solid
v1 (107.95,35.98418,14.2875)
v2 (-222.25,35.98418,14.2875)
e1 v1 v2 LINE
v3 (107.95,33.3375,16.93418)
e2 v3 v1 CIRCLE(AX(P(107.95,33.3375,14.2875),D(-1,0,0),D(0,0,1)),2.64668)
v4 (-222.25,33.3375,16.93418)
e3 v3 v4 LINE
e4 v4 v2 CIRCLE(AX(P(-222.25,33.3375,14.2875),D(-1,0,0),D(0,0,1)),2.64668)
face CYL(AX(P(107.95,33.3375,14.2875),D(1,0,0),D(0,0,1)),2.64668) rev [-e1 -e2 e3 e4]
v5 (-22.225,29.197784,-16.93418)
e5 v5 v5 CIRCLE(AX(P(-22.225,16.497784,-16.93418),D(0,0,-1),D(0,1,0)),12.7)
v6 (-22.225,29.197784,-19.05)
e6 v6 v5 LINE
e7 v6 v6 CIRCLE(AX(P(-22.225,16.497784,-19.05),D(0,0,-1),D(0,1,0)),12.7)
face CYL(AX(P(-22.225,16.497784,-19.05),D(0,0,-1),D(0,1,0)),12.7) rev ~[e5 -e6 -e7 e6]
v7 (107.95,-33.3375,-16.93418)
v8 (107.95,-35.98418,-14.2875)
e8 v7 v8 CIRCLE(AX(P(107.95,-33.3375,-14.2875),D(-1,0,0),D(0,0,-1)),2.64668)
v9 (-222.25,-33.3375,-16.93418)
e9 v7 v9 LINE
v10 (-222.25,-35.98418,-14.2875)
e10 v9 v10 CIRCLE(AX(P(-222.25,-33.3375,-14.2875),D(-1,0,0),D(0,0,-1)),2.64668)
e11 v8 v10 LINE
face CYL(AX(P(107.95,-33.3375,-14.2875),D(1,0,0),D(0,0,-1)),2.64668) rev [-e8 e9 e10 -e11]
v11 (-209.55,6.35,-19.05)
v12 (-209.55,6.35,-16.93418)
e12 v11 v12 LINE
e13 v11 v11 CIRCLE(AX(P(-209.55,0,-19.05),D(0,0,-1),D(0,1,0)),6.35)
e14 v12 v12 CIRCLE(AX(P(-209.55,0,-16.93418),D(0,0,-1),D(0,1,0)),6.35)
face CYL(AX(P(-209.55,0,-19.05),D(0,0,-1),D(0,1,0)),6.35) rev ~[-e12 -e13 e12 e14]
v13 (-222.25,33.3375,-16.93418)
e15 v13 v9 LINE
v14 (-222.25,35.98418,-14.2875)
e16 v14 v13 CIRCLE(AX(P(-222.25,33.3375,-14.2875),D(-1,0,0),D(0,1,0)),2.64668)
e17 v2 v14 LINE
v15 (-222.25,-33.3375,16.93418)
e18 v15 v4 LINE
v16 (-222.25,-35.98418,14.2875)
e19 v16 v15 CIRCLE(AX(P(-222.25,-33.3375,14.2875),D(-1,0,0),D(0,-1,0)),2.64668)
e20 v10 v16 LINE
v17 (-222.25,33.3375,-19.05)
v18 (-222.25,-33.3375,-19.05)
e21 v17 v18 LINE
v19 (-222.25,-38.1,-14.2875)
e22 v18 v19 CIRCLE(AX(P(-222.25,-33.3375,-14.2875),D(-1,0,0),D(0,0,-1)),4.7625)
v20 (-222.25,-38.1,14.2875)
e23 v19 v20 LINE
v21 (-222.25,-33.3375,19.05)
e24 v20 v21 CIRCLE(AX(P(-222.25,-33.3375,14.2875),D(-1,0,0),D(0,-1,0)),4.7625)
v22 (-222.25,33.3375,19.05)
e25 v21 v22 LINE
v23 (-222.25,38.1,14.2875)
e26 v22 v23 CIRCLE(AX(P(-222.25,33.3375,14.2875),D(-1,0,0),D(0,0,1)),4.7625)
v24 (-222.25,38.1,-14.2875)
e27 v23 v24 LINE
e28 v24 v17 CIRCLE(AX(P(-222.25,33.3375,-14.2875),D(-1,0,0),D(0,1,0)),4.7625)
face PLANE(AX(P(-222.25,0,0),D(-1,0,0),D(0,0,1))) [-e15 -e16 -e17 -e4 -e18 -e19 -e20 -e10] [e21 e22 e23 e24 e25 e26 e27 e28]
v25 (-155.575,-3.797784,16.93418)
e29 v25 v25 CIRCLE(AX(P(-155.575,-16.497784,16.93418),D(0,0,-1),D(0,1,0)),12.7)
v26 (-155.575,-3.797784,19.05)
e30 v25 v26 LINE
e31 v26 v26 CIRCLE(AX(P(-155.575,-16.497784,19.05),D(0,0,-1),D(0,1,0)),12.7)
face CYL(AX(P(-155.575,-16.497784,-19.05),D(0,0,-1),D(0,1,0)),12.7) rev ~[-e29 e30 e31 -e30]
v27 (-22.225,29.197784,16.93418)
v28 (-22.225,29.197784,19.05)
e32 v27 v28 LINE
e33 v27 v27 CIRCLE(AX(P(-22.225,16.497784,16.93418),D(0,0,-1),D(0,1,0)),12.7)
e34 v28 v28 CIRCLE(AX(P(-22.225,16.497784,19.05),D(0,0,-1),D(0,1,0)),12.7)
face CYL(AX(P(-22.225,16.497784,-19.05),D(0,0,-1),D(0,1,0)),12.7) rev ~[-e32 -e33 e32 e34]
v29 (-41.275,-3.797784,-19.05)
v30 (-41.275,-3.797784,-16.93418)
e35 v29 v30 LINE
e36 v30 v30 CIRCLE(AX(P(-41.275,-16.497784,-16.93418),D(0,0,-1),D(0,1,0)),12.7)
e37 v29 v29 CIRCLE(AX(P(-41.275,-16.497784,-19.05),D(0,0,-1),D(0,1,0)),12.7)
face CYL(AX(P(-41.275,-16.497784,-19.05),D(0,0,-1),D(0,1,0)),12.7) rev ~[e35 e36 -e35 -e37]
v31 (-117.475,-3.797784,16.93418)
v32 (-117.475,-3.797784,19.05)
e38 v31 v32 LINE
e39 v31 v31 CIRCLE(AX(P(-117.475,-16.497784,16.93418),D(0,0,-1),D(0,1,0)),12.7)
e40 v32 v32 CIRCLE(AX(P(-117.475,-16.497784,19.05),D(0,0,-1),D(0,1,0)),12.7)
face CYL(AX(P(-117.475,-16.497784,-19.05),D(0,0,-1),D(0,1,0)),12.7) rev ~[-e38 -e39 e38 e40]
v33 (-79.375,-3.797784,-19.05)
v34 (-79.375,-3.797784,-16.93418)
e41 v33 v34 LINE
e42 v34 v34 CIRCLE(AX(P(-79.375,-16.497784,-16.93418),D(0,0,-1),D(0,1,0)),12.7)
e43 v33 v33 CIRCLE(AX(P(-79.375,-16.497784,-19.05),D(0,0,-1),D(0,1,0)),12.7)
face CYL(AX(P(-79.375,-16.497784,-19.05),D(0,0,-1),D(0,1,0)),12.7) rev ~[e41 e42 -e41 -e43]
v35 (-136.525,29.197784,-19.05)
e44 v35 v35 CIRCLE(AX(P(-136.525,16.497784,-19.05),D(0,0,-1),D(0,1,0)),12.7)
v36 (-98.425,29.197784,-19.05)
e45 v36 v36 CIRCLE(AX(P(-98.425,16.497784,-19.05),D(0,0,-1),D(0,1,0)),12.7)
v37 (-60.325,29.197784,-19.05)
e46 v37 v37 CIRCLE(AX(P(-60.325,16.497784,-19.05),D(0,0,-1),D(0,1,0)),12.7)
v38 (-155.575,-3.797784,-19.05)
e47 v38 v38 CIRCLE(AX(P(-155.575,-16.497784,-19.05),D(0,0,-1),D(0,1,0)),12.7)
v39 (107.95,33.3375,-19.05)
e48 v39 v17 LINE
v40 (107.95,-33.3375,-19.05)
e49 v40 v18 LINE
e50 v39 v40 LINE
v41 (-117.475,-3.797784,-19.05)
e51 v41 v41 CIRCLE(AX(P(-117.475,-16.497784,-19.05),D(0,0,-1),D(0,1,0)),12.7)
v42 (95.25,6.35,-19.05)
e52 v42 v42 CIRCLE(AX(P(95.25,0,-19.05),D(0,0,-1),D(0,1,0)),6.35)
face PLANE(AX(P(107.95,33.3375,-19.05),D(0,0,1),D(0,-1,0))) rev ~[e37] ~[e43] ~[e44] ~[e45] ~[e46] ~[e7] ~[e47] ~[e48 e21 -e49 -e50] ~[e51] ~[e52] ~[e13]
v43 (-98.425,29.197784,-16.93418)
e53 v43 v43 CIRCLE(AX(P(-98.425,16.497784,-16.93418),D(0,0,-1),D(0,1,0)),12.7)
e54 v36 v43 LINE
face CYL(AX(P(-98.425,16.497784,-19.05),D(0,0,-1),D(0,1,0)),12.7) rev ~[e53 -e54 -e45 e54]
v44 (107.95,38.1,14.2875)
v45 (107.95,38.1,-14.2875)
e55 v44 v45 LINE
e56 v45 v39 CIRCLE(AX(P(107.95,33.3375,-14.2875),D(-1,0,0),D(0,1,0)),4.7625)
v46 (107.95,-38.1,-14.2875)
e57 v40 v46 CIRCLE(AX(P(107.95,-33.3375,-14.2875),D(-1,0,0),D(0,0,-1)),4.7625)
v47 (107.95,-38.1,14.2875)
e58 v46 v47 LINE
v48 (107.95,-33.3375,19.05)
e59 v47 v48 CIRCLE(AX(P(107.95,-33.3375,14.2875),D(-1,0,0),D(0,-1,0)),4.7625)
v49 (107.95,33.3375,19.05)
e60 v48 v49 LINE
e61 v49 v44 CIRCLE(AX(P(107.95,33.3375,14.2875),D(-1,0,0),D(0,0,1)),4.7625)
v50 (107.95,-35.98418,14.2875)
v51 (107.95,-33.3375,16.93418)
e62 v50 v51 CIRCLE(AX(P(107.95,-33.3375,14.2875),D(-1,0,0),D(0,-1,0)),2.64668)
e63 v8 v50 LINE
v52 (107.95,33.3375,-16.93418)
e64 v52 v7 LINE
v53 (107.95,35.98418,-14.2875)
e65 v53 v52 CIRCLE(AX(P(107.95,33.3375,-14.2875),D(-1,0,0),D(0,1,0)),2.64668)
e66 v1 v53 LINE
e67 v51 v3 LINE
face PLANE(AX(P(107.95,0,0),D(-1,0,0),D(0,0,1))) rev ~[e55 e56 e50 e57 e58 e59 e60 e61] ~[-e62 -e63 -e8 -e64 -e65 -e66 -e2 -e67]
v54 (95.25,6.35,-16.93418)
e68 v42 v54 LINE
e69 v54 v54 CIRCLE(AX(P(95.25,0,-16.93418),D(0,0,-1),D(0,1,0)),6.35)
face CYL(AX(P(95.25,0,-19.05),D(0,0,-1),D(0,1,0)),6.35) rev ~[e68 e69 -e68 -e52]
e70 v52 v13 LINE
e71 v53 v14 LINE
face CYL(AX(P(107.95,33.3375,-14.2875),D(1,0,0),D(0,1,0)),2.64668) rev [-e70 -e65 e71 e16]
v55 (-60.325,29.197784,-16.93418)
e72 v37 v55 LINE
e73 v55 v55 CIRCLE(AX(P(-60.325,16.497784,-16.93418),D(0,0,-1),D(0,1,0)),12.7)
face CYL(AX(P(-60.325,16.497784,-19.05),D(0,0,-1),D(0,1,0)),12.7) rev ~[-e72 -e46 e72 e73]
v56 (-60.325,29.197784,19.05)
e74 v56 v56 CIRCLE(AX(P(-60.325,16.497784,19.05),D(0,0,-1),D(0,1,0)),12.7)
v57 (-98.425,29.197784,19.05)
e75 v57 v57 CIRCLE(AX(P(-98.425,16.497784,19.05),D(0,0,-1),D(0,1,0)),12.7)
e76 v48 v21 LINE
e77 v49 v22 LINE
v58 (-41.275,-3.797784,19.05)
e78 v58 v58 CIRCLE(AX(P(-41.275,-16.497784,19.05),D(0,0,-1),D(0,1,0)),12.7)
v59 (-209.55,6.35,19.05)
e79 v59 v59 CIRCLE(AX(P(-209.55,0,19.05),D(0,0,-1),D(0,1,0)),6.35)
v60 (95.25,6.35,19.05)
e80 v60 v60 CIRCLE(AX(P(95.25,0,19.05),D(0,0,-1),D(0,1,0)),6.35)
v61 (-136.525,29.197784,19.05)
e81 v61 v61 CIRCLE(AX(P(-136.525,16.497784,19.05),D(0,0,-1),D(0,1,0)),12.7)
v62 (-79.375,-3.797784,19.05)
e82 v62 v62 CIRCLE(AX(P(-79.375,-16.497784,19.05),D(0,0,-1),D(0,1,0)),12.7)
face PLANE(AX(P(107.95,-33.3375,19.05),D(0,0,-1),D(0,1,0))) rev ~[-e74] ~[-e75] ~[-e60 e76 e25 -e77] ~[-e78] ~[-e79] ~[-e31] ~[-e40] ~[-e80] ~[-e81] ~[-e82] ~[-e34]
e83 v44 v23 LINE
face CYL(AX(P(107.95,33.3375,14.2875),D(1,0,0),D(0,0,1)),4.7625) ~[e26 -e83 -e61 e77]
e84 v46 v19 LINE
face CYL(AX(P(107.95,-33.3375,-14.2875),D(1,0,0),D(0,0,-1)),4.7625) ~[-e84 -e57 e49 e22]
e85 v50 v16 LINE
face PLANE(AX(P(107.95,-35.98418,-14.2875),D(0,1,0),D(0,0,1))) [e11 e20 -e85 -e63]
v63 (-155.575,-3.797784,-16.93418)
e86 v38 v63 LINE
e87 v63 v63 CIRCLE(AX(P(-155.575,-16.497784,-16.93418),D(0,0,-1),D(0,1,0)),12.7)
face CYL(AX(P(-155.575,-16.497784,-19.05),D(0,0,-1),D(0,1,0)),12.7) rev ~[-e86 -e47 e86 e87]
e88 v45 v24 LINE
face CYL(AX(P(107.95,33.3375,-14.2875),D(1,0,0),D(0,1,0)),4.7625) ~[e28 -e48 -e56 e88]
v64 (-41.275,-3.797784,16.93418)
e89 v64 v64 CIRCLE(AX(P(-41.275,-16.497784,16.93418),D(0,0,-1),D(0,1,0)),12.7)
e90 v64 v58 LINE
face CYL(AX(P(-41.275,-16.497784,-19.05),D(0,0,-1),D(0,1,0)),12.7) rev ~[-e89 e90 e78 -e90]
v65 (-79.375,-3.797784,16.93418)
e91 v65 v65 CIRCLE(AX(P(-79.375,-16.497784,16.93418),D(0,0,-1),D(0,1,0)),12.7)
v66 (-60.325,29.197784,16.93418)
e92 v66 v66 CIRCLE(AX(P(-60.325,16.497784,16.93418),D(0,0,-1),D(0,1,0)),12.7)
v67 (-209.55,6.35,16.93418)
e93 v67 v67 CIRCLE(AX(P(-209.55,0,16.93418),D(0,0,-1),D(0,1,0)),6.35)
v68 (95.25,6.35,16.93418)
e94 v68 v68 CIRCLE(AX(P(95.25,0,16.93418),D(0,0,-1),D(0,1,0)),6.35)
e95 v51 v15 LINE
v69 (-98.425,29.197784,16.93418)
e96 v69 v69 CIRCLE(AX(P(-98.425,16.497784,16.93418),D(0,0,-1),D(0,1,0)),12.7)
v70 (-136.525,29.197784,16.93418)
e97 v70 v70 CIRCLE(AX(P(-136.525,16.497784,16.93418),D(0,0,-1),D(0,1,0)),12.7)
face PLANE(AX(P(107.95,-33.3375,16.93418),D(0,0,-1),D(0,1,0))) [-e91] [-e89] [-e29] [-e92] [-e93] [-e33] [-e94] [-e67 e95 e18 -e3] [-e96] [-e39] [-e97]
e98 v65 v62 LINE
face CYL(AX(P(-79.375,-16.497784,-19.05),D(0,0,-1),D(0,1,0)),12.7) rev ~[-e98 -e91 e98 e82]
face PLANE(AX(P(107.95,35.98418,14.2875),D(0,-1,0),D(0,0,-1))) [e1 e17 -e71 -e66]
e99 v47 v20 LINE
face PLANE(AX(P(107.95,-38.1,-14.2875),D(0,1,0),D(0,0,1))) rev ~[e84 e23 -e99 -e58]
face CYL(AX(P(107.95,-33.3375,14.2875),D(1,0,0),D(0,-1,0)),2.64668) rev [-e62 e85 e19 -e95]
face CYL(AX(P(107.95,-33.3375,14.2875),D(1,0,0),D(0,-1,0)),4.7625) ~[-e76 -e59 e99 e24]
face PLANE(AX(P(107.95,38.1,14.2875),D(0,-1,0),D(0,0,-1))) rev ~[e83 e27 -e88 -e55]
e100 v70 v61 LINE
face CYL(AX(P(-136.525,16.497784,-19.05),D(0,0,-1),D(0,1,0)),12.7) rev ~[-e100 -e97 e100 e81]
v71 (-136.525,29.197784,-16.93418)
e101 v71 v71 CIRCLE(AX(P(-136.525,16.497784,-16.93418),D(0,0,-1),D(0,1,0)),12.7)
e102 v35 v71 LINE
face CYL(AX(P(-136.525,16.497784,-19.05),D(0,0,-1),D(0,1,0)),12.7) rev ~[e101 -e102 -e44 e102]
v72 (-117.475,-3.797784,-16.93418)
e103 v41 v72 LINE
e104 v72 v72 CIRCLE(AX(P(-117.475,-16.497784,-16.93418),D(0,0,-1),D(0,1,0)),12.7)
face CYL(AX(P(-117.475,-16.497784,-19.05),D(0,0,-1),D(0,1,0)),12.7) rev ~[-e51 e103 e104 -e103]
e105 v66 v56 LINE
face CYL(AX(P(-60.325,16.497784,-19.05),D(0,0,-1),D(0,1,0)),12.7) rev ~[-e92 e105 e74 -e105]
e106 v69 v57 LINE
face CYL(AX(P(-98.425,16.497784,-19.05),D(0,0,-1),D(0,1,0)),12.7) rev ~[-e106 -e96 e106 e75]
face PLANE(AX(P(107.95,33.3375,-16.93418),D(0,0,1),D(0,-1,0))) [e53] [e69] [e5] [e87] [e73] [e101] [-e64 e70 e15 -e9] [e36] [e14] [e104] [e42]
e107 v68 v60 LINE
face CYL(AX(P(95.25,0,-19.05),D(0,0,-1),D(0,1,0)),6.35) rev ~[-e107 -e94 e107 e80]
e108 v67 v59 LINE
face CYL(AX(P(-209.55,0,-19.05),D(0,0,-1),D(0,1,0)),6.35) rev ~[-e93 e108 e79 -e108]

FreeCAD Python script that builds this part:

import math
import FreeCAD as App
import Part
import Sketcher
Q = App.Units.Quantity

doc = App.newDocument("Part")
params = doc.addObject("Spreadsheet::Sheet", "Params")
for row, (alias, value) in enumerate([
    ("sketch1_radius", "0.1875 in"),
    ("sketch1_height", "1.125 in"),
    ("pad1_length", "13 in"),
    ("sketch2_diameter", "0.5 in"),
    ("sketch3_diameter", "1 in"),
    ("linearpattern_pitch", "1.5 in"),
], start=1):
    params.set(f"A{row}", alias)
    params.set(f"B{row}", "=" + value)
    params.setAlias(f"B{row}", alias)

body = doc.addObject("PartDesign::Body", "Body")

sketch1 = doc.addObject("Sketcher::SketchObject", "Sketch")
body.addObject(sketch1)
sketch1.AttachmentSupport = (doc.YZ_Plane, [""])
sketch1.MapMode = "FlatFace"
sketch1.AttachmentOffset = App.Placement(App.Vector(0, 0, 4.25 * 25.4), App.Rotation())
sketch1.addGeometry([
    Part.LineSegment(App.Vector(-38.1, -14.3, 0), App.Vector(-38.1, 14.3, 0)),
    Part.ArcOfCircle(Part.Circle(App.Vector(-33.3, 14.3, 0), App.Vector(0, 0, 1), 4.8), math.radians(90), math.radians(180)),
    Part.LineSegment(App.Vector(-33.3, 19.1, 0), App.Vector(33.3, 19.1, 0)),
    Part.ArcOfCircle(Part.Circle(App.Vector(33.3, 14.3, 0), App.Vector(0, 0, 1), 4.8), math.radians(0), math.radians(90)),
    Part.LineSegment(App.Vector(38.1, 14.3, 0), App.Vector(38.1, -14.3, 0)),
    Part.ArcOfCircle(Part.Circle(App.Vector(33.3, -14.3, 0), App.Vector(0, 0, 1), 4.8), math.radians(-90), math.radians(0)),
    Part.LineSegment(App.Vector(33.3, -19.1, 0), App.Vector(-33.3, -19.1, 0)),
    Part.ArcOfCircle(Part.Circle(App.Vector(-33.3, -14.3, 0), App.Vector(0, 0, 1), 4.8), math.radians(-180), math.radians(-90)),
    Part.LineSegment(App.Vector(-36, 14.3, 0), App.Vector(-36, -14.3, 0)),
    Part.ArcOfCircle(Part.Circle(App.Vector(-33.3, -14.3, 0), App.Vector(0, 0, 1), 2.6), math.radians(180), math.radians(270)),
    Part.LineSegment(App.Vector(-33.3, -16.9, 0), App.Vector(33.3, -16.9, 0)),
    Part.ArcOfCircle(Part.Circle(App.Vector(33.3, -14.3, 0), App.Vector(0, 0, 1), 2.6), math.radians(-90), math.radians(0)),
    Part.LineSegment(App.Vector(36, -14.3, 0), App.Vector(36, 14.3, 0)),
    Part.ArcOfCircle(Part.Circle(App.Vector(33.3, 14.3, 0), App.Vector(0, 0, 1), 2.6), math.radians(0), math.radians(90)),
    Part.LineSegment(App.Vector(33.3, 16.9, 0), App.Vector(-33.3, 16.9, 0)),
    Part.ArcOfCircle(Part.Circle(App.Vector(-33.3, 14.3, 0), App.Vector(0, 0, 1), 2.6), math.radians(90), math.radians(180)),
], False)
sketch1.addConstraint([
    Sketcher.Constraint("Tangent", 0, 2, 1, 2),
    Sketcher.Constraint("Tangent", 1, 1, 2, 1),
    Sketcher.Constraint("Tangent", 2, 2, 3, 2),
    Sketcher.Constraint("Tangent", 3, 1, 4, 1),
    Sketcher.Constraint("Tangent", 4, 2, 5, 2),
    Sketcher.Constraint("Tangent", 5, 1, 6, 1),
    Sketcher.Constraint("Tangent", 6, 2, 7, 2),
    Sketcher.Constraint("Tangent", 7, 1, 0, 1),
    Sketcher.Constraint("Tangent", 8, 2, 9, 1),
    Sketcher.Constraint("Tangent", 9, 2, 10, 1),
    Sketcher.Constraint("Tangent", 10, 2, 11, 1),
    Sketcher.Constraint("Tangent", 11, 2, 12, 1),
    Sketcher.Constraint("Tangent", 12, 2, 13, 1),
    Sketcher.Constraint("Tangent", 13, 2, 14, 1),
    Sketcher.Constraint("Tangent", 14, 2, 15, 1),
    Sketcher.Constraint("Tangent", 15, 2, 8, 1),
    Sketcher.Constraint("Vertical", 0),
    Sketcher.Constraint("Horizontal", 2),
    Sketcher.Constraint("Vertical", 4),
    Sketcher.Constraint("Horizontal", 6),
    Sketcher.Constraint("Vertical", 8),
    Sketcher.Constraint("Horizontal", 10),
    Sketcher.Constraint("Vertical", 12),
    Sketcher.Constraint("Horizontal", 14),
    Sketcher.Constraint("Coincident", 9, 3, 7, 3),
    Sketcher.Constraint("Coincident", 11, 3, 5, 3),
    Sketcher.Constraint("Coincident", 13, 3, 3, 3),
    Sketcher.Constraint("Equal", 1, 3),
    Sketcher.Constraint("Equal", 3, 5),
    Sketcher.Constraint("Equal", 5, 7),
    Sketcher.Constraint("Equal", 13, 15),
    Sketcher.Constraint("Symmetric", 1, 3, 5, 3, -1, 1),
    Sketcher.Constraint("Radius", 1, Q("0.1875 in")),
    Sketcher.Constraint("DistanceX", 0, 2, -1, 1, Q("1.5 in")),
    Sketcher.Constraint("Radius", 9, Q("0.1042 in")),
    Sketcher.Constraint("DistanceY", 0, 1, 0, 2, Q("1.125 in")),
])
sketch1.setExpression("Constraints[32]", "Params.sketch1_radius")
sketch1.setExpression("Constraints[35]", "Params.sketch1_height")
pad1 = doc.addObject("PartDesign::Pad", "Pad")
body.addObject(pad1)
pad1.Profile = sketch1
pad1.setExpression("Length", "Params.pad1_length")
pad1.Reversed = True

sketch2 = doc.addObject("Sketcher::SketchObject", "Sketch001")
body.addObject(sketch2)
sketch2.AttachmentSupport = (doc.XY_Plane, [""])
sketch2.MapMode = "FlatFace"
sketch2.AttachmentOffset = App.Placement(App.Vector(0, 0, -0.75 * 25.4), App.Rotation())
sketch2.addGeometry([
    Part.Circle(App.Vector(95, 0, 0), App.Vector(0, 0, 1), 6),
    Part.Circle(App.Vector(-210, 0, 0), App.Vector(0, 0, 1), 6),
], False)
sketch2.addConstraint([
    Sketcher.Constraint("Equal", 0, 1),
    Sketcher.Constraint("PointOnObject", 0, 3, -1),
    Sketcher.Constraint("PointOnObject", 1, 3, -1),
    Sketcher.Constraint("Diameter", 0, Q("0.5 in")),
    Sketcher.Constraint("DistanceX", 1, 3, 0, 3, Q("12 in")),
    Sketcher.Constraint("DistanceX", -1, 1, 0, 3, Q("3.75 in")),
])
sketch2.setExpression("Constraints[3]", "Params.sketch2_diameter")
pocket1 = doc.addObject("PartDesign::Pocket", "Pocket")
body.addObject(pocket1)
pocket1.Profile = sketch2
pocket1.Type = "ThroughAll"
pocket1.Reversed = True

sketch3 = doc.addObject("Sketcher::SketchObject", "Sketch002")
body.addObject(sketch3)
sketch3.AttachmentSupport = (doc.XY_Plane, [""])
sketch3.MapMode = "FlatFace"
sketch3.AttachmentOffset = App.Placement(App.Vector(0, 0, -0.75 * 25.4), App.Rotation())
sketch3.addGeometry([
    Part.Circle(App.Vector(-22, 16, 0), App.Vector(0, 0, 1), 13),
    Part.Circle(App.Vector(-41, -16, 0), App.Vector(0, 0, 1), 13),
], False)
sketch3.addConstraint([
    Sketcher.Constraint("Equal", 0, 1),
    Sketcher.Constraint("Diameter", 0, Q("1 in")),
    Sketcher.Constraint("DistanceX", 1, 3, 0, 3, Q("0.75 in")),
    Sketcher.Constraint("DistanceX", 0, 3, -1, 1, Q("0.875 in")),
    Sketcher.Constraint("DistanceY", -1, 1, 0, 3, Q("16.497784 mm")),
    Sketcher.Constraint("DistanceY", 1, 3, -1, 1, Q("16.497784 mm")),
])
sketch3.setExpression("Constraints[1]", "Params.sketch3_diameter")
pocket2 = doc.addObject("PartDesign::Pocket", "Pocket001")
body.addObject(pocket2)
pocket2.Profile = sketch3
pocket2.Type = "ThroughAll"
pocket2.Reversed = True
doc.recompute()

linearpattern = doc.addObject("PartDesign::LinearPattern", "LinearPattern")
body.addObject(linearpattern)
linearpattern.Originals = [pocket2]
linearpattern.Direction = (doc.X_Axis, [""])
linearpattern.Mode = "offset"
linearpattern.setExpression("Offset", "Params.linearpattern_pitch")
linearpattern.Occurrences = 4
linearpattern.Reversed = True
body.Tip = linearpattern

doc.recompute()
